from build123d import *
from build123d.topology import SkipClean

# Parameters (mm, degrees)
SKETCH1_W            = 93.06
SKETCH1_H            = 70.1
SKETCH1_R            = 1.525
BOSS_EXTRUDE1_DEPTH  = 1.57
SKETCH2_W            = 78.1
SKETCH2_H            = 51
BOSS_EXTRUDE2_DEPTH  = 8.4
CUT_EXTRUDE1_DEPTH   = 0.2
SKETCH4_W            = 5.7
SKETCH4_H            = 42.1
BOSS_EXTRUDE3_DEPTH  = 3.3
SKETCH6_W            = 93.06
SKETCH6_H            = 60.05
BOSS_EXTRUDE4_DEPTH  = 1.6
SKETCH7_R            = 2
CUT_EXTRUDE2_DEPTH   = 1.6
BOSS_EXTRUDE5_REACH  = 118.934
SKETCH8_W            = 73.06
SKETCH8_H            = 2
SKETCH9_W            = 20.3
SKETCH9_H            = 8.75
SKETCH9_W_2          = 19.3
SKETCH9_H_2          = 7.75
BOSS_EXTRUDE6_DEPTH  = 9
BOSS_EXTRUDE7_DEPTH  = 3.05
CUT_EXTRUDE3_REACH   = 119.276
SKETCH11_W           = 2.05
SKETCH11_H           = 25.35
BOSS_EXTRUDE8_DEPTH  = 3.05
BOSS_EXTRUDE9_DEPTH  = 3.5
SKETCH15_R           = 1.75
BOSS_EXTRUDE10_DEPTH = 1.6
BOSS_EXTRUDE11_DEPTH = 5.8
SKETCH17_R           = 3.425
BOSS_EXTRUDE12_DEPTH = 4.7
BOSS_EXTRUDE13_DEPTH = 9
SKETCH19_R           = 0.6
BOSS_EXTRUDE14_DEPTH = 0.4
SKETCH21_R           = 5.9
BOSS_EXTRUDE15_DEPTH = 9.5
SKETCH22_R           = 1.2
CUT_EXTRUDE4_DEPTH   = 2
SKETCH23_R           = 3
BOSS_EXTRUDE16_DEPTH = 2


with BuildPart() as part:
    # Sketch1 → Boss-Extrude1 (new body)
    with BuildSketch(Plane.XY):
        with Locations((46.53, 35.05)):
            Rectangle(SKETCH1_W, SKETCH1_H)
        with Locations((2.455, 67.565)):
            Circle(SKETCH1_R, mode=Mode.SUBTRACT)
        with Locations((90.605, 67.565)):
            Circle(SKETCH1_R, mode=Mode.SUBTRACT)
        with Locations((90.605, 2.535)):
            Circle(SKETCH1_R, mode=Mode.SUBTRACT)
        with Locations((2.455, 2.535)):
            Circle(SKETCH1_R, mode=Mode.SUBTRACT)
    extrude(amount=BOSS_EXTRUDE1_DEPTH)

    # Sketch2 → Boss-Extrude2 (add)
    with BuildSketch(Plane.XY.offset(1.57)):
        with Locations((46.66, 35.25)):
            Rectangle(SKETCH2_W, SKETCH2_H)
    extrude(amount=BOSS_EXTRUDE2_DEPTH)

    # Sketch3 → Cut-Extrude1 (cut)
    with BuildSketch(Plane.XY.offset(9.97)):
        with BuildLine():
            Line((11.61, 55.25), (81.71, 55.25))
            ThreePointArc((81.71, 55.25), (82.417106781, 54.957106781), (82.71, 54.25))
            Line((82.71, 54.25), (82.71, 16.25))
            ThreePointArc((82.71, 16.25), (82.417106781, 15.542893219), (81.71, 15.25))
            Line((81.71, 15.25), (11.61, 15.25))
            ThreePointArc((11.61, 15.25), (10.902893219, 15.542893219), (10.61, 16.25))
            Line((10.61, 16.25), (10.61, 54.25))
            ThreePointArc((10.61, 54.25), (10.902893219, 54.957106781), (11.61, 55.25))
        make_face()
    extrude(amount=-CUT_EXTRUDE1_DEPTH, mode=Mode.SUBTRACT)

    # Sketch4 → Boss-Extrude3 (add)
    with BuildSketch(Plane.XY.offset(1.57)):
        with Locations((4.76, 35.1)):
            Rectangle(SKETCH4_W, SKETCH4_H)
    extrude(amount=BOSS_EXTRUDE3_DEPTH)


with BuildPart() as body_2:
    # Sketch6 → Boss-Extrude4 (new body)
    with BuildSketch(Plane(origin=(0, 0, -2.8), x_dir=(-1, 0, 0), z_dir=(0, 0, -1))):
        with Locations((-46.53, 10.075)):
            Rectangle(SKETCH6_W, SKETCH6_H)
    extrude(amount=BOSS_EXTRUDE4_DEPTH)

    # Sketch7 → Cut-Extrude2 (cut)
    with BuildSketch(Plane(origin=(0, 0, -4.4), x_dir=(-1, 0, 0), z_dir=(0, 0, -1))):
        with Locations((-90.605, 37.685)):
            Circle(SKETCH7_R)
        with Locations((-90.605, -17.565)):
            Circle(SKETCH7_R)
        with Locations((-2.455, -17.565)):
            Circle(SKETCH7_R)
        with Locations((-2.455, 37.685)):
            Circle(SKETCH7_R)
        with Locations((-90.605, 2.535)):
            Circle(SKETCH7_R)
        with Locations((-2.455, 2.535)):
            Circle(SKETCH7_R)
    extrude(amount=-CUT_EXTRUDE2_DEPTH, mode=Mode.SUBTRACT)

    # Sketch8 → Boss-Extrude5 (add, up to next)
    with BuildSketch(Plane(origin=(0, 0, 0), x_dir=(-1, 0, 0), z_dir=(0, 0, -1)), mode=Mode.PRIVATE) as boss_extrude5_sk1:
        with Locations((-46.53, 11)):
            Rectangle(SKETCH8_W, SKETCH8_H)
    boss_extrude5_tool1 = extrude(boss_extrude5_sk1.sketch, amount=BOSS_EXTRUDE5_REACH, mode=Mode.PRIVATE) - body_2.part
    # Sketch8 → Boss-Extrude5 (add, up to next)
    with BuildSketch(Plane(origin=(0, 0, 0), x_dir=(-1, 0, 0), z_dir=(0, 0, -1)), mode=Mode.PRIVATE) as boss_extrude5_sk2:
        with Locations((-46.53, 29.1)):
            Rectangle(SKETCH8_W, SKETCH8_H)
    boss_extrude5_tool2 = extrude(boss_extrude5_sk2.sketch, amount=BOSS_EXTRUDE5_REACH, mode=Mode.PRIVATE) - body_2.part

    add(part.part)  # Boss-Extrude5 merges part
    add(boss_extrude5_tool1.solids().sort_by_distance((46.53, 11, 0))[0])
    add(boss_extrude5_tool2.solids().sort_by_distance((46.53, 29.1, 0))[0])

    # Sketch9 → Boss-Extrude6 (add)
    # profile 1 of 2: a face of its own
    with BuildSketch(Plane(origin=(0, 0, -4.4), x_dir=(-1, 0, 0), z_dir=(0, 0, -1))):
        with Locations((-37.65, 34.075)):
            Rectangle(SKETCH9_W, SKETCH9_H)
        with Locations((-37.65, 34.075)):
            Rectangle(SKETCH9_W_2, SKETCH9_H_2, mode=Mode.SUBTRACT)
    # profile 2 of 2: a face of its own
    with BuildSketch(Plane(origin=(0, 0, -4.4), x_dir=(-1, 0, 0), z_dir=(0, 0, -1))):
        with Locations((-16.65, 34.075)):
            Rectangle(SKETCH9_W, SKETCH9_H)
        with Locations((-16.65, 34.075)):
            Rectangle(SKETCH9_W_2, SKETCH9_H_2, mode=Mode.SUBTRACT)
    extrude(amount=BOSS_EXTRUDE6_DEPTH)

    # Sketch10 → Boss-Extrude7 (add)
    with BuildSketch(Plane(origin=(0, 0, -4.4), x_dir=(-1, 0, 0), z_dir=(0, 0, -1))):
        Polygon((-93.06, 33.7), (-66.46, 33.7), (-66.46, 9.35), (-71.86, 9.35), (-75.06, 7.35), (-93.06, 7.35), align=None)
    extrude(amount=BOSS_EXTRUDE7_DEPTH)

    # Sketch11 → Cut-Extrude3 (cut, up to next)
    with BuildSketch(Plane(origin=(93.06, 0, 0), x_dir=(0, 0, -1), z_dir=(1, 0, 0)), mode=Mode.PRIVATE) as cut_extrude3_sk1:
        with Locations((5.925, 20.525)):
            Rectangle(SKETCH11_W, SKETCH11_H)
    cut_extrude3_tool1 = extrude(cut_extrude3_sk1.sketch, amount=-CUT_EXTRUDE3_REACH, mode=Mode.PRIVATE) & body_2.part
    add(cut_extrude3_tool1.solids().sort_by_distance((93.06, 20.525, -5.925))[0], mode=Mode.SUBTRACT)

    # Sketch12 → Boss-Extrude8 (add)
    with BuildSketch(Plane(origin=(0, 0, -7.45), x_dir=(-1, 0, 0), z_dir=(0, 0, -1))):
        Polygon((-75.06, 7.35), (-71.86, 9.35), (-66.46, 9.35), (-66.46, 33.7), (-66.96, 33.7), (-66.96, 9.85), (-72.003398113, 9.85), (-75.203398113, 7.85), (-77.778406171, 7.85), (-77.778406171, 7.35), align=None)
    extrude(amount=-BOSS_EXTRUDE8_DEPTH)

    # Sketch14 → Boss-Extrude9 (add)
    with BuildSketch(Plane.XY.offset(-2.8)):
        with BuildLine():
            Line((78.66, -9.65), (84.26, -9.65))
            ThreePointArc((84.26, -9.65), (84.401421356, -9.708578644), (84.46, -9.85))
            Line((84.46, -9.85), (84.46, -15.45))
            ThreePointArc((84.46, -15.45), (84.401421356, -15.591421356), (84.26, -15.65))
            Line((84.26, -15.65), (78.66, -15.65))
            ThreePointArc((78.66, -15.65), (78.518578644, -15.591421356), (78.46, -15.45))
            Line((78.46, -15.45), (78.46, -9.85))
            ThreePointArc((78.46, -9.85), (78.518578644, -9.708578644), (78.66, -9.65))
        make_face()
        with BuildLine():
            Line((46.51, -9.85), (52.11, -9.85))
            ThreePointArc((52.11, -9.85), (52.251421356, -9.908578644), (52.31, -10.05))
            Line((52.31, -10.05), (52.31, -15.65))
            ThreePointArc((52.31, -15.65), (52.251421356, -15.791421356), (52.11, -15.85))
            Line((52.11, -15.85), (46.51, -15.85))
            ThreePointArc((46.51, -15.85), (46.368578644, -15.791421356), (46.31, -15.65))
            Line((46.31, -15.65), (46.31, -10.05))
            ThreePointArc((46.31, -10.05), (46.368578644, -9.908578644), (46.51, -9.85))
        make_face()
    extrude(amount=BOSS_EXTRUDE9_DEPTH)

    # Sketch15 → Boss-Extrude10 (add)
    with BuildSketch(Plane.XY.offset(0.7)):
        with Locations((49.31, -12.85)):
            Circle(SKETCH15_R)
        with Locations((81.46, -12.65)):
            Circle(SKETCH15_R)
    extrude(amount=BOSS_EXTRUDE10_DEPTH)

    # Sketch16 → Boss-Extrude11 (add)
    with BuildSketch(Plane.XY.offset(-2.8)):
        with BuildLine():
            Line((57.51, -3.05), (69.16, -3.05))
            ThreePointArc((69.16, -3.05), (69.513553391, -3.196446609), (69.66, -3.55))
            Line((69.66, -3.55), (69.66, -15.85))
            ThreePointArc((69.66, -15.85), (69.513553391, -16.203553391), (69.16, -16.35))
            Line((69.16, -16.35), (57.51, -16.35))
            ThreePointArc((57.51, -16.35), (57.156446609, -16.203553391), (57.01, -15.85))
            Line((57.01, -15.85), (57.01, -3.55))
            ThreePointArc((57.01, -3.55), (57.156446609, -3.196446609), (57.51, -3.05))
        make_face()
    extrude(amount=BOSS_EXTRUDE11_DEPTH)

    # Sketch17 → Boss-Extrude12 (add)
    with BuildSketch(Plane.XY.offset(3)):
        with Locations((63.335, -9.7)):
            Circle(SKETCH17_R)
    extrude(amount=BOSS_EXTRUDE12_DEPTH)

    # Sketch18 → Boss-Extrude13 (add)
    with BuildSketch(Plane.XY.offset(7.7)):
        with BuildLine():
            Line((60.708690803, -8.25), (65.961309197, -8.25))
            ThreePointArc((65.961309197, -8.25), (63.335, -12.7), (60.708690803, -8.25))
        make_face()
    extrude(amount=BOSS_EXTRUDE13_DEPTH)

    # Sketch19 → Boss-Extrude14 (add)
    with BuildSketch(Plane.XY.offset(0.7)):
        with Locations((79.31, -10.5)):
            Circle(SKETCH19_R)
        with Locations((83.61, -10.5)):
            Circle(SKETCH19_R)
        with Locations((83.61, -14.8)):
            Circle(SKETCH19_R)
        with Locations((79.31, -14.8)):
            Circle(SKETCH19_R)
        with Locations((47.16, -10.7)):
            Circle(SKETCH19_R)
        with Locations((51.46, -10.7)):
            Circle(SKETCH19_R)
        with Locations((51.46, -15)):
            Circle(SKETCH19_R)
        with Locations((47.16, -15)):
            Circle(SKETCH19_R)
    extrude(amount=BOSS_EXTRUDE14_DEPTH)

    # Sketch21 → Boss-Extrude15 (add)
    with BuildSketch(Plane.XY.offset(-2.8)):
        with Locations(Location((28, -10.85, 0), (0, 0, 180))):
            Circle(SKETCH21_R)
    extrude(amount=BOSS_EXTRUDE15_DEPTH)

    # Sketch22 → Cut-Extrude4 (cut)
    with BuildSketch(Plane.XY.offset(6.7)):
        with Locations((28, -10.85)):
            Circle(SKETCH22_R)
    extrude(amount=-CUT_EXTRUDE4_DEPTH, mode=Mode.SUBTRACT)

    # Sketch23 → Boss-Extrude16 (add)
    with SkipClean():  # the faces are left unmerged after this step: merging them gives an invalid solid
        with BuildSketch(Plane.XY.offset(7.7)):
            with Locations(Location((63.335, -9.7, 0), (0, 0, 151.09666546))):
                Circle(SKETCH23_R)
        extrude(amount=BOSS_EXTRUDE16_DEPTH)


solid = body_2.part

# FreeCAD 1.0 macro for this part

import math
import FreeCAD as App
import Part
import Sketcher
from FreeCAD import Vector

doc = App.newDocument("Part")
body = doc.addObject("PartDesign::Body", "Body")

# Sketch on XY plane
sketch1 = body.newObject("Sketcher::SketchObject", "Sketch")
sketch1.AttachmentSupport = (doc.getObject("XY_Plane"), [""])
sketch1.MapMode = "FlatFace"
sketch1.addGeometry([
    Part.LineSegment(Vector(0, 70.1, 0), Vector(0, 0, 0)),  # 0
    Part.LineSegment(Vector(0, 0, 0), Vector(93.1, 0, 0)),  # 1
    Part.LineSegment(Vector(93.1, 0, 0), Vector(93.1, 70.1, 0)),  # 2
    Part.LineSegment(Vector(93.1, 70.1, 0), Vector(0, 70.1, 0)),  # 3
    Part.Circle(Vector(2.5, 2.5, 0), Vector(0, 0, 1), 1.5),  # 4
    Part.Circle(Vector(90.6, 2.5, 0), Vector(0, 0, 1), 1.5),  # 5
    Part.Circle(Vector(2.5, 67.6, 0), Vector(0, 0, 1), 1.5),  # 6
    Part.Circle(Vector(90.6, 67.6, 0), Vector(0, 0, 1), 1.5),  # 7
], False)
sketch1.addConstraint([
    Sketcher.Constraint("Coincident", 0, 2, 1, 1),
    Sketcher.Constraint("Coincident", 1, 2, 2, 1),
    Sketcher.Constraint("Coincident", 2, 2, 3, 1),
    Sketcher.Constraint("Coincident", 3, 2, 0, 1),
    Sketcher.Constraint("Vertical", 0),
    Sketcher.Constraint("Horizontal", 1),
    Sketcher.Constraint("Vertical", 2),
    Sketcher.Constraint("Horizontal", 3),
    Sketcher.Constraint("Coincident", 0, 2, -1, 1),
    Sketcher.Constraint("Equal", 4, 5),
    Sketcher.Constraint("Equal", 5, 6),
    Sketcher.Constraint("Equal", 6, 7),
    Sketcher.Constraint("Horizontal", 4, 3, 5, 3),
    Sketcher.Constraint("Horizontal", 6, 3, 7, 3),
    Sketcher.Constraint("Vertical", 4, 3, 6, 3),
    Sketcher.Constraint("Vertical", 5, 3, 7, 3),
    Sketcher.Constraint("Diameter", 4, 3.05),
    Sketcher.Constraint("DistanceY", 0, 2, 0, 1, 70.1),
    Sketcher.Constraint("DistanceX", 1, 1, 1, 2, 93.06),
    Sketcher.Constraint("DistanceX", 4, 3, 5, 3, 88.15),
    Sketcher.Constraint("DistanceY", 4, 3, 6, 3, 65.03),
    Sketcher.Constraint("DistanceX", -1, 1, 4, 3, 2.455),
    Sketcher.Constraint("DistanceY", -1, 1, 4, 3, 2.535),
])
pad1 = body.newObject("PartDesign::Pad", "Pad")
pad1.Profile = sketch1
pad1.Length = 1.57

# Sketch on XY plane
sketch2 = body.newObject("Sketcher::SketchObject", "Sketch001")
sketch2.AttachmentSupport = (doc.getObject("XY_Plane"), [""])
sketch2.MapMode = "FlatFace"
sketch2.AttachmentOffset = App.Placement(Vector(0, 0, 1.57), App.Rotation())
sketch2.addGeometry([
    Part.LineSegment(Vector(8, 61, 0), Vector(8, 10, 0)),
    Part.LineSegment(Vector(8, 10, 0), Vector(86, 10, 0)),
    Part.LineSegment(Vector(86, 10, 0), Vector(86, 61, 0)),
    Part.LineSegment(Vector(86, 61, 0), Vector(8, 61, 0)),
], False)
sketch2.addConstraint([
    Sketcher.Constraint("Coincident", 0, 2, 1, 1),
    Sketcher.Constraint("Coincident", 1, 2, 2, 1),
    Sketcher.Constraint("Coincident", 2, 2, 3, 1),
    Sketcher.Constraint("Coincident", 3, 2, 0, 1),
    Sketcher.Constraint("Vertical", 0),
    Sketcher.Constraint("Horizontal", 1),
    Sketcher.Constraint("Vertical", 2),
    Sketcher.Constraint("Horizontal", 3),
    Sketcher.Constraint("DistanceY", 0, 2, 0, 1, 51.0),
    Sketcher.Constraint("DistanceX", 1, 1, 1, 2, 78.1),
    Sketcher.Constraint("DistanceX", -1, 1, 0, 2, 7.61),
    Sketcher.Constraint("DistanceY", -1, 1, 0, 2, 9.75),
])
pad2 = body.newObject("PartDesign::Pad", "Pad001")
pad2.Profile = sketch2
pad2.Length = 8.4

# Sketch on XY plane
sketch3 = body.newObject("Sketcher::SketchObject", "Sketch002")
sketch3.AttachmentSupport = (doc.getObject("XY_Plane"), [""])
sketch3.MapMode = "FlatFace"
sketch3.AttachmentOffset = App.Placement(Vector(0, 0, 9.97), App.Rotation())
sketch3.addGeometry([
    Part.LineSegment(Vector(81.7, 55.2, 0), Vector(11.6, 55.2, 0)),  # 0
    Part.ArcOfCircle(Part.Circle(Vector(11.6, 54.2, 0), Vector(0, 0, 1), 1), math.radians(90), math.radians(180)),  # 1
    Part.LineSegment(Vector(10.6, 54.2, 0), Vector(10.6, 16.2, 0)),  # 2
    Part.ArcOfCircle(Part.Circle(Vector(11.6, 16.3, 0), Vector(0, 0, 1), 1), math.radians(-180), math.radians(-90)),  # 3
    Part.LineSegment(Vector(11.6, 15.2, 0), Vector(81.7, 15.2, 0)),  # 4
    Part.ArcOfCircle(Part.Circle(Vector(81.7, 16.3, 0), Vector(0, 0, 1), 1), math.radians(-90), math.radians(0)),  # 5
    Part.LineSegment(Vector(82.7, 16.2, 0), Vector(82.7, 54.2, 0)),  # 6
    Part.ArcOfCircle(Part.Circle(Vector(81.7, 54.2, 0), Vector(0, 0, 1), 1), math.radians(0), math.radians(90)),  # 7
], False)
sketch3.addConstraint([
    Sketcher.Constraint("Tangent", 0, 2, 1, 1),
    Sketcher.Constraint("Tangent", 1, 2, 2, 1),
    Sketcher.Constraint("Tangent", 2, 2, 3, 1),
    Sketcher.Constraint("Tangent", 3, 2, 4, 1),
    Sketcher.Constraint("Tangent", 4, 2, 5, 1),
    Sketcher.Constraint("Tangent", 5, 2, 6, 1),
    Sketcher.Constraint("Tangent", 6, 2, 7, 1),
    Sketcher.Constraint("Tangent", 7, 2, 0, 1),
    Sketcher.Constraint("Horizontal", 0),
    Sketcher.Constraint("Vertical", 2),
    Sketcher.Constraint("Horizontal", 4),
    Sketcher.Constraint("Vertical", 6),
    Sketcher.Constraint("Equal", 1, 3),
    Sketcher.Constraint("Equal", 3, 5),
    Sketcher.Constraint("Equal", 5, 7),
    Sketcher.Constraint("Radius", 1, 1.0),
    Sketcher.Constraint("DistanceY", 2, 2, 2, 1, 38.0),
    Sketcher.Constraint("DistanceX", 0, 2, 0, 1, 70.1),
    Sketcher.Constraint("DistanceX", -1, 1, 1, 3, 11.61),
    Sketcher.Constraint("DistanceY", -1, 1, 1, 3, 54.25),
])
pocket1 = body.newObject("PartDesign::Pocket", "Pocket")
pocket1.Profile = sketch3
pocket1.Length = 0.2

# Sketch on XY plane
sketch4 = body.newObject("Sketcher::SketchObject", "Sketch003")
sketch4.AttachmentSupport = (doc.getObject("XY_Plane"), [""])
sketch4.MapMode = "FlatFace"
sketch4.AttachmentOffset = App.Placement(Vector(0, 0, 1.57), App.Rotation())
sketch4.addGeometry([
    Part.LineSegment(Vector(2, 56, 0), Vector(2, 14, 0)),
    Part.LineSegment(Vector(2, 14, 0), Vector(8, 14, 0)),
    Part.LineSegment(Vector(8, 14, 0), Vector(8, 56, 0)),
    Part.LineSegment(Vector(8, 56, 0), Vector(2, 56, 0)),
], False)
sketch4.addConstraint([
    Sketcher.Constraint("Coincident", 0, 2, 1, 1),
    Sketcher.Constraint("Coincident", 1, 2, 2, 1),
    Sketcher.Constraint("Coincident", 2, 2, 3, 1),
    Sketcher.Constraint("Coincident", 3, 2, 0, 1),
    Sketcher.Constraint("Vertical", 0),
    Sketcher.Constraint("Horizontal", 1),
    Sketcher.Constraint("Vertical", 2),
    Sketcher.Constraint("Horizontal", 3),
    Sketcher.Constraint("DistanceX", 1, 1, 1, 2, 5.7),
    Sketcher.Constraint("DistanceY", 0, 2, 0, 1, 42.1),
    Sketcher.Constraint("DistanceX", -1, 1, 0, 2, 1.91),
    Sketcher.Constraint("DistanceY", -1, 1, 0, 2, 14.05),
])
pad3 = body.newObject("PartDesign::Pad", "Pad002")
pad3.Profile = sketch4
pad3.Length = 3.3
body2 = doc.addObject("PartDesign::Body", "Body001")
body2.AllowCompound = True

# Sketch on XY plane
sketch5 = body2.newObject("Sketcher::SketchObject", "Sketch004")
sketch5.AttachmentSupport = (doc.getObject("XY_Plane001"), [""])
sketch5.MapMode = "FlatFace"
sketch5.AttachmentOffset = App.Placement(Vector(0, 0, -2.8), App.Rotation())
sketch5.addGeometry([
    Part.LineSegment(Vector(93, 40, 0), Vector(93, -20, 0)),
    Part.LineSegment(Vector(93, -20, 0), Vector(0, -20, 0)),
    Part.LineSegment(Vector(0, -20, 0), Vector(0, 40, 0)),
    Part.LineSegment(Vector(0, 40, 0), Vector(93, 40, 0)),
], False)
sketch5.addConstraint([
    Sketcher.Constraint("Coincident", 0, 2, 1, 1),
    Sketcher.Constraint("Coincident", 1, 2, 2, 1),
    Sketcher.Constraint("Coincident", 2, 2, 3, 1),
    Sketcher.Constraint("Coincident", 3, 2, 0, 1),
    Sketcher.Constraint("Vertical", 0),
    Sketcher.Constraint("Horizontal", 1),
    Sketcher.Constraint("Vertical", 2),
    Sketcher.Constraint("Horizontal", 3),
    Sketcher.Constraint("PointOnObject", 1, 2, -2),
    Sketcher.Constraint("DistanceX", 1, 2, 1, 1, 93.06),
    Sketcher.Constraint("DistanceY", 0, 2, 0, 1, 60.05),
    Sketcher.Constraint("DistanceY", -1, 1, 2, 2, 40.1),
])
pad4 = body2.newObject("PartDesign::Pad", "Pad003")
pad4.Profile = sketch5
pad4.Length = 1.6
pad4.Reversed = True

# Sketch on XY plane
sketch6 = body2.newObject("Sketcher::SketchObject", "Sketch005")
sketch6.AttachmentSupport = (doc.getObject("XY_Plane001"), [""])
sketch6.MapMode = "FlatFace"
sketch6.AttachmentOffset = App.Placement(Vector(0, 0, -4.4), App.Rotation())
sketch6.addGeometry([
    Part.Circle(Vector(90.6, 37.7, 0), Vector(0, 0, 1), 2),  # 0
    Part.Circle(Vector(90.6, -17.6, 0), Vector(0, 0, 1), 2),  # 1
    Part.Circle(Vector(2.5, -17.6, 0), Vector(0, 0, 1), 2),  # 2
    Part.Circle(Vector(2.5, 37.7, 0), Vector(0, 0, 1), 2),  # 3
    Part.Circle(Vector(90.6, 2.5, 0), Vector(0, 0, 1), 2),  # 4
    Part.Circle(Vector(2.5, 2.5, 0), Vector(0, 0, 1), 2),  # 5
], False)
sketch6.addConstraint([
    Sketcher.Constraint("Equal", 0, 1),
    Sketcher.Constraint("Equal", 1, 2),
    Sketcher.Constraint("Equal", 2, 3),
    Sketcher.Constraint("Equal", 3, 4),
    Sketcher.Constraint("Equal", 4, 5),
    Sketcher.Constraint("Horizontal", 1, 3, 2, 3),
    Sketcher.Constraint("Horizontal", 0, 3, 3, 3),
    Sketcher.Constraint("Horizontal", 4, 3, 5, 3),
    Sketcher.Constraint("Vertical", 0, 3, 1, 3),
    Sketcher.Constraint("Vertical", 2, 3, 3, 3),
    Sketcher.Constraint("Vertical", 1, 3, 4, 3),
    Sketcher.Constraint("Vertical", 3, 3, 5, 3),
    Sketcher.Constraint("Diameter", 0, 4.0),
    Sketcher.Constraint("DistanceY", 1, 3, 4, 3, 20.1),
    Sketcher.Constraint("DistanceY", 1, 3, 0, 3, 55.25),
    Sketcher.Constraint("DistanceX", 2, 3, 1, 3, 88.15),
    Sketcher.Constraint("DistanceX", -1, 1, 0, 3, 90.605),
    Sketcher.Constraint("DistanceY", -1, 1, 0, 3, 37.685),
])
pocket2 = body2.newObject("PartDesign::Pocket", "Pocket001")
pocket2.Profile = sketch6
pocket2.Length = 1.6
pocket2.Reversed = True
doc.recompute()

boolean = body2.newObject("PartDesign::Boolean", "Boolean")
boolean.Type = "Fuse"
boolean.addObjects([body])

# Sketch on XY plane
sketch7 = body2.newObject("Sketcher::SketchObject", "Sketch006")
sketch7.AttachmentSupport = (doc.getObject("XY_Plane001"), [""])
sketch7.MapMode = "FlatFace"
sketch7.addGeometry([
    Part.LineSegment(Vector(83.1, 12, 0), Vector(83.1, 10, 0)),
    Part.LineSegment(Vector(83.1, 10, 0), Vector(10, 10, 0)),
    Part.LineSegment(Vector(10, 10, 0), Vector(10, 12, 0)),
    Part.LineSegment(Vector(10, 12, 0), Vector(83.1, 12, 0)),
], False)
sketch7.addConstraint([
    Sketcher.Constraint("Coincident", 0, 2, 1, 1),
    Sketcher.Constraint("Coincident", 1, 2, 2, 1),
    Sketcher.Constraint("Coincident", 2, 2, 3, 1),
    Sketcher.Constraint("Coincident", 3, 2, 0, 1),
    Sketcher.Constraint("Vertical", 0),
    Sketcher.Constraint("Horizontal", 1),
    Sketcher.Constraint("Vertical", 2),
    Sketcher.Constraint("Horizontal", 3),
    Sketcher.Constraint("DistanceY", 0, 2, 0, 1, 2.0),
    Sketcher.Constraint("DistanceY", -1, 1, 0, 2, 10.0),
    Sketcher.Constraint("DistanceX", -1, 1, 1, 2, 10.0),
    Sketcher.Constraint("DistanceX", 1, 2, 1, 1, 73.06),
])
pad5 = body2.newObject("PartDesign::Pad", "Pad004")
pad5.Profile = sketch7
pad5.Type = "UpToFirst"
pad5.Reversed = True

# Sketch on XY plane
sketch8 = body2.newObject("Sketcher::SketchObject", "Sketch007")
sketch8.AttachmentSupport = (doc.getObject("XY_Plane001"), [""])
sketch8.MapMode = "FlatFace"
sketch8.addGeometry([
    Part.LineSegment(Vector(83.1, 30.1, 0), Vector(83.1, 28.1, 0)),
    Part.LineSegment(Vector(83.1, 28.1, 0), Vector(10, 28.1, 0)),
    Part.LineSegment(Vector(10, 28.1, 0), Vector(10, 30.1, 0)),
    Part.LineSegment(Vector(10, 30.1, 0), Vector(83.1, 30.1, 0)),
], False)
sketch8.addConstraint([
    Sketcher.Constraint("Coincident", 0, 2, 1, 1),
    Sketcher.Constraint("Coincident", 1, 2, 2, 1),
    Sketcher.Constraint("Coincident", 2, 2, 3, 1),
    Sketcher.Constraint("Coincident", 3, 2, 0, 1),
    Sketcher.Constraint("Vertical", 0),
    Sketcher.Constraint("Horizontal", 1),
    Sketcher.Constraint("Vertical", 2),
    Sketcher.Constraint("Horizontal", 3),
    Sketcher.Constraint("DistanceY", 0, 2, 0, 1, 2.0),
    Sketcher.Constraint("DistanceX", -1, 1, 1, 2, 10.0),
    Sketcher.Constraint("DistanceX", 1, 2, 1, 1, 73.06),
    Sketcher.Constraint("DistanceY", -1, 1, 0, 2, 28.1),
])
pad6 = body2.newObject("PartDesign::Pad", "Pad005")
pad6.Profile = sketch8
pad6.Type = "UpToFirst"
pad6.Reversed = True

# Sketch on XY plane
sketch9 = body2.newObject("Sketcher::SketchObject", "Sketch008")
sketch9.AttachmentSupport = (doc.getObject("XY_Plane001"), [""])
sketch9.MapMode = "FlatFace"
sketch9.AttachmentOffset = App.Placement(Vector(0, 0, -4.4), App.Rotation())
sketch9.addGeometry([
    Part.LineSegment(Vector(48, 38, 0), Vector(48, 30, 0)),  # 0
    Part.LineSegment(Vector(48, 30, 0), Vector(28, 30, 0)),  # 1
    Part.LineSegment(Vector(28, 30, 0), Vector(28, 38, 0)),  # 2
    Part.LineSegment(Vector(28, 38, 0), Vector(48, 38, 0)),  # 3
    Part.LineSegment(Vector(28, 30, 0), Vector(47, 30, 0)),  # 4
    Part.LineSegment(Vector(47, 30, 0), Vector(47, 38, 0)),  # 5
    Part.LineSegment(Vector(47, 38, 0), Vector(28, 38, 0)),  # 6
    Part.LineSegment(Vector(28, 38, 0), Vector(28, 30, 0)),  # 7
    Part.LineSegment(Vector(27, 38, 0), Vector(27, 30, 0)),  # 8
    Part.LineSegment(Vector(27, 30, 0), Vector(6, 30, 0)),  # 9
    Part.LineSegment(Vector(6, 30, 0), Vector(6, 38, 0)),  # 10
    Part.LineSegment(Vector(6, 38, 0), Vector(27, 38, 0)),  # 11
    Part.LineSegment(Vector(7, 30, 0), Vector(26, 30, 0)),  # 12
    Part.LineSegment(Vector(26, 30, 0), Vector(26, 38, 0)),  # 13
    Part.LineSegment(Vector(26, 38, 0), Vector(7, 38, 0)),  # 14
    Part.LineSegment(Vector(7, 38, 0), Vector(7, 30, 0)),  # 15
], False)
sketch9.addConstraint([
    Sketcher.Constraint("Coincident", 0, 2, 1, 1),
    Sketcher.Constraint("Coincident", 1, 2, 2, 1),
    Sketcher.Constraint("Coincident", 2, 2, 3, 1),
    Sketcher.Constraint("Coincident", 3, 2, 0, 1),
    Sketcher.Constraint("Coincident", 4, 2, 5, 1),
    Sketcher.Constraint("Coincident", 5, 2, 6, 1),
    Sketcher.Constraint("Coincident", 6, 2, 7, 1),
    Sketcher.Constraint("Coincident", 7, 2, 4, 1),
    Sketcher.Constraint("Coincident", 8, 2, 9, 1),
    Sketcher.Constraint("Coincident", 9, 2, 10, 1),
    Sketcher.Constraint("Coincident", 10, 2, 11, 1),
    Sketcher.Constraint("Coincident", 11, 2, 8, 1),
    Sketcher.Constraint("Coincident", 12, 2, 13, 1),
    Sketcher.Constraint("Coincident", 13, 2, 14, 1),
    Sketcher.Constraint("Coincident", 14, 2, 15, 1),
    Sketcher.Constraint("Coincident", 15, 2, 12, 1),
    Sketcher.Constraint("Vertical", 0),
    Sketcher.Constraint("Horizontal", 1),
    Sketcher.Constraint("Vertical", 2),
    Sketcher.Constraint("Horizontal", 3),
    Sketcher.Constraint("Horizontal", 4),
    Sketcher.Constraint("Vertical", 5),
    Sketcher.Constraint("Horizontal", 6),
    Sketcher.Constraint("Vertical", 7),
    Sketcher.Constraint("Vertical", 8),
    Sketcher.Constraint("Horizontal", 9),
    Sketcher.Constraint("Vertical", 10),
    Sketcher.Constraint("Horizontal", 11),
    Sketcher.Constraint("Horizontal", 12),
    Sketcher.Constraint("Vertical", 13),
    Sketcher.Constraint("Horizontal", 14),
    Sketcher.Constraint("Vertical", 15),
    Sketcher.Constraint("Horizontal", 1, 2, 8, 2),
    Sketcher.Constraint("Horizontal", 3, 2, 10, 2),
    Sketcher.Constraint("Horizontal", 7, 2, 12, 2),
    Sketcher.Constraint("Horizontal", 6, 2, 13, 2),
    Sketcher.Constraint("Equal", 3, 9),
    Sketcher.Constraint("Equal", 6, 12),
    Sketcher.Constraint("DistanceX", 1, 2, 1, 1, 20.3),
    Sketcher.Constraint("DistanceX", 4, 1, 4, 2, 19.3),
    Sketcher.Constraint("DistanceX", -1, 1, 6, 2, 28.0),
    Sketcher.Constraint("DistanceX", -1, 1, 14, 2, 7.0),
    Sketcher.Constraint("DistanceX", 9, 2, 1, 2, 21.0),
    Sketcher.Constraint("DistanceY", 0, 2, 0, 1, 8.75),
    Sketcher.Constraint("DistanceY", 5, 1, 5, 2, 7.75),
    Sketcher.Constraint("DistanceX", -1, 1, 0, 2, 47.8),
    Sketcher.Constraint("DistanceY", -1, 1, 0, 2, 29.7),
    Sketcher.Constraint("DistanceY", -1, 1, 4, 2, 30.2),
])
pad7 = body2.newObject("PartDesign::Pad", "Pad006")
pad7.Profile = sketch9
pad7.Length = 9
pad7.Reversed = True

# Sketch on XY plane
sketch10 = body2.newObject("Sketcher::SketchObject", "Sketch009")
sketch10.AttachmentSupport = (doc.getObject("XY_Plane001"), [""])
sketch10.MapMode = "FlatFace"
sketch10.AttachmentOffset = App.Placement(Vector(0, 0, -4.4), App.Rotation())
sketch10.addGeometry([
    Part.LineSegment(Vector(66.5, 33.7, 0), Vector(93.1, 33.7, 0)),  # 0
    Part.LineSegment(Vector(93.1, 33.7, 0), Vector(93.1, 7.3, 0)),  # 1
    Part.LineSegment(Vector(93.1, 7.3, 0), Vector(75.1, 7.3, 0)),  # 2
    Part.LineSegment(Vector(75.1, 7.3, 0), Vector(71.9, 9.3, 0)),  # 3
    Part.LineSegment(Vector(71.9, 9.3, 0), Vector(66.5, 9.3, 0)),  # 4
    Part.LineSegment(Vector(66.5, 9.3, 0), Vector(66.5, 33.7, 0)),  # 5
], False)
sketch10.addConstraint([
    Sketcher.Constraint("Coincident", 0, 2, 1, 1),
    Sketcher.Constraint("Coincident", 1, 2, 2, 1),
    Sketcher.Constraint("Coincident", 2, 2, 3, 1),
    Sketcher.Constraint("Coincident", 3, 2, 4, 1),
    Sketcher.Constraint("Coincident", 4, 2, 5, 1),
    Sketcher.Constraint("Coincident", 5, 2, 0, 1),
    Sketcher.Constraint("Horizontal", 0),
    Sketcher.Constraint("Vertical", 1),
    Sketcher.Constraint("Horizontal", 2),
    Sketcher.Constraint("Horizontal", 4),
    Sketcher.Constraint("Vertical", 5),
    Sketcher.Constraint("DistanceX", 2, 2, 2, 1, 18.0),
    Sketcher.Constraint("DistanceX", 0, 1, 0, 2, 26.6),
    Sketcher.Constraint("DistanceX", 4, 2, 4, 1, 5.4),
    Sketcher.Constraint("DistanceY", 2, 2, 3, 2, 2.0),
    Sketcher.Constraint("DistanceY", 1, 2, 1, 1, 26.35),
    Sketcher.Constraint("DistanceY", -1, 1, 0, 2, 33.7),
    Sketcher.Constraint("DistanceX", -1, 1, 0, 2, 93.06),
])
pad8 = body2.newObject("PartDesign::Pad", "Pad007")
pad8.Profile = sketch10
pad8.Length = 3.05
pad8.Reversed = True

# Sketch on YZ plane
sketch11 = body2.newObject("Sketcher::SketchObject", "Sketch010")
sketch11.AttachmentSupport = (doc.getObject("YZ_Plane001"), [""])
sketch11.MapMode = "FlatFace"
sketch11.AttachmentOffset = App.Placement(Vector(0, 0, 93.06), App.Rotation())
sketch11.addGeometry([
    Part.LineSegment(Vector(33.2, -4.9, 0), Vector(7.8, -4.9, 0)),
    Part.LineSegment(Vector(7.8, -4.9, 0), Vector(7.8, -7, 0)),
    Part.LineSegment(Vector(7.8, -7, 0), Vector(33.2, -7, 0)),
    Part.LineSegment(Vector(33.2, -7, 0), Vector(33.2, -4.9, 0)),
], False)
sketch11.addConstraint([
    Sketcher.Constraint("Coincident", 0, 2, 1, 1),
    Sketcher.Constraint("Coincident", 1, 2, 2, 1),
    Sketcher.Constraint("Coincident", 2, 2, 3, 1),
    Sketcher.Constraint("Coincident", 3, 2, 0, 1),
    Sketcher.Constraint("Horizontal", 0),
    Sketcher.Constraint("Vertical", 1),
    Sketcher.Constraint("Horizontal", 2),
    Sketcher.Constraint("Vertical", 3),
    Sketcher.Constraint("DistanceX", 0, 2, 0, 1, 25.35),
    Sketcher.Constraint("DistanceY", 1, 2, 1, 1, 2.05),
    Sketcher.Constraint("DistanceY", 0, 2, -1, 1, 4.9),
    Sketcher.Constraint("DistanceX", -1, 1, 2, 2, 33.2),
])
pocket3 = body2.newObject("PartDesign::Pocket", "Pocket002")
pocket3.Profile = sketch11
pocket3.Type = "UpToFirst"

# Sketch on XY plane
sketch12 = body2.newObject("Sketcher::SketchObject", "Sketch011")
sketch12.AttachmentSupport = (doc.getObject("XY_Plane001"), [""])
sketch12.MapMode = "FlatFace"
sketch12.AttachmentOffset = App.Placement(Vector(0, 0, -7.45), App.Rotation())
sketch12.addGeometry([
    Part.LineSegment(Vector(75.1, 7.3, 0), Vector(71.9, 9.3, 0)),  # 0
    Part.LineSegment(Vector(71.9, 9.3, 0), Vector(66.5, 9.3, 0)),  # 1
    Part.LineSegment(Vector(66.5, 9.3, 0), Vector(66.5, 33.7, 0)),  # 2
    Part.LineSegment(Vector(66.5, 33.7, 0), Vector(67, 33.7, 0)),  # 3
    Part.LineSegment(Vector(67, 33.7, 0), Vector(67, 9.8, 0)),  # 4
    Part.LineSegment(Vector(67, 9.8, 0), Vector(72, 9.8, 0)),  # 5
    Part.LineSegment(Vector(72, 9.8, 0), Vector(75.2, 7.8, 0)),  # 6
    Part.LineSegment(Vector(75.2, 7.8, 0), Vector(77.8, 7.8, 0)),  # 7
    Part.LineSegment(Vector(77.8, 7.8, 0), Vector(77.8, 7.3, 0)),  # 8
    Part.LineSegment(Vector(77.8, 7.3, 0), Vector(75.1, 7.3, 0)),  # 9
], False)
sketch12.addConstraint([
    Sketcher.Constraint("Coincident", 0, 2, 1, 1),
    Sketcher.Constraint("Coincident", 1, 2, 2, 1),
    Sketcher.Constraint("Coincident", 2, 2, 3, 1),
    Sketcher.Constraint("Coincident", 3, 2, 4, 1),
    Sketcher.Constraint("Coincident", 4, 2, 5, 1),
    Sketcher.Constraint("Coincident", 5, 2, 6, 1),
    Sketcher.Constraint("Coincident", 6, 2, 7, 1),
    Sketcher.Constraint("Coincident", 7, 2, 8, 1),
    Sketcher.Constraint("Coincident", 8, 2, 9, 1),
    Sketcher.Constraint("Coincident", 9, 2, 0, 1),
    Sketcher.Constraint("Horizontal", 1),
    Sketcher.Constraint("Vertical", 2),
    Sketcher.Constraint("Horizontal", 3),
    Sketcher.Constraint("Vertical", 4),
    Sketcher.Constraint("Horizontal", 5),
    Sketcher.Constraint("Horizontal", 7),
    Sketcher.Constraint("Vertical", 8),
    Sketcher.Constraint("Horizontal", 9),
    Sketcher.Constraint("Parallel", 0, 6),
    Sketcher.Constraint("Equal", 3, 8),
    Sketcher.Constraint("Equal", 0, 6),
    Sketcher.Constraint("DistanceX", 1, 2, 1, 1, 5.4),
    Sketcher.Constraint("DistanceX", 3, 1, 3, 2, 0.5),
    Sketcher.Constraint("DistanceY", 6, 2, 5, 2, 2.0),
    Sketcher.Constraint("DistanceY", 2, 1, 2, 2, 24.35),
    Sketcher.Constraint("DistanceY", -1, 1, 2, 2, 33.7),
    Sketcher.Constraint("DistanceX", 5, 2, 6, 2, 3.2),
    Sketcher.Constraint("DistanceX", -1, 1, 0, 2, 71.86),
    Sketcher.Constraint("DistanceX", 5, 1, 5, 2, 5.043398),
    Sketcher.Constraint("DistanceX", 7, 1, 7, 2, 2.575008),
])
pad9 = body2.newObject("PartDesign::Pad", "Pad008")
pad9.Profile = sketch12
pad9.Length = 3.05

# Sketch on XY plane
sketch13 = body2.newObject("Sketcher::SketchObject", "Sketch012")
sketch13.AttachmentSupport = (doc.getObject("XY_Plane001"), [""])
sketch13.MapMode = "FlatFace"
sketch13.AttachmentOffset = App.Placement(Vector(0, 0, -2.8), App.Rotation())
sketch13.addGeometry([
    Part.LineSegment(Vector(84.26, -9.65, 0), Vector(78.66, -9.65, 0)),  # 0
    Part.ArcOfCircle(Part.Circle(Vector(78.66, -9.85, 0), Vector(0, 0, 1), 0.2), math.radians(90), math.radians(180)),  # 1
    Part.LineSegment(Vector(78.46, -9.85, 0), Vector(78.46, -15.45, 0)),  # 2
    Part.ArcOfCircle(Part.Circle(Vector(78.66, -15.45, 0), Vector(0, 0, 1), 0.2), math.radians(-180), math.radians(-90)),  # 3
    Part.LineSegment(Vector(78.66, -15.65, 0), Vector(84.26, -15.65, 0)),  # 4
    Part.ArcOfCircle(Part.Circle(Vector(84.26, -15.45, 0), Vector(0, 0, 1), 0.2), math.radians(-90), math.radians(0)),  # 5
    Part.LineSegment(Vector(84.46, -15.45, 0), Vector(84.46, -9.85, 0)),  # 6
    Part.ArcOfCircle(Part.Circle(Vector(84.26, -9.85, 0), Vector(0, 0, 1), 0.2), math.radians(0), math.radians(90)),  # 7
    Part.LineSegment(Vector(52.11, -9.85, 0), Vector(46.51, -9.85, 0)),  # 8
    Part.ArcOfCircle(Part.Circle(Vector(46.51, -10.05, 0), Vector(0, 0, 1), 0.2), math.radians(90), math.radians(180)),  # 9
    Part.LineSegment(Vector(46.31, -10.05, 0), Vector(46.31, -15.65, 0)),  # 10
    Part.ArcOfCircle(Part.Circle(Vector(46.51, -15.65, 0), Vector(0, 0, 1), 0.2), math.radians(-180), math.radians(-90)),  # 11
    Part.LineSegment(Vector(46.51, -15.85, 0), Vector(52.11, -15.85, 0)),  # 12
    Part.ArcOfCircle(Part.Circle(Vector(52.11, -15.65, 0), Vector(0, 0, 1), 0.2), math.radians(-90), math.radians(0)),  # 13
    Part.LineSegment(Vector(52.31, -15.65, 0), Vector(52.31, -10.05, 0)),  # 14
    Part.ArcOfCircle(Part.Circle(Vector(52.11, -10.05, 0), Vector(0, 0, 1), 0.2), math.radians(0), math.radians(90)),  # 15
], False)
sketch13.addConstraint([
    Sketcher.Constraint("Tangent", 0, 2, 1, 1),
    Sketcher.Constraint("Tangent", 1, 2, 2, 1),
    Sketcher.Constraint("Tangent", 2, 2, 3, 1),
    Sketcher.Constraint("Tangent", 3, 2, 4, 1),
    Sketcher.Constraint("Tangent", 4, 2, 5, 1),
    Sketcher.Constraint("Tangent", 5, 2, 6, 1),
    Sketcher.Constraint("Tangent", 6, 2, 7, 1),
    Sketcher.Constraint("Tangent", 7, 2, 0, 1),
    Sketcher.Constraint("Tangent", 8, 2, 9, 1),
    Sketcher.Constraint("Tangent", 9, 2, 10, 1),
    Sketcher.Constraint("Tangent", 10, 2, 11, 1),
    Sketcher.Constraint("Tangent", 11, 2, 12, 1),
    Sketcher.Constraint("Tangent", 12, 2, 13, 1),
    Sketcher.Constraint("Tangent", 13, 2, 14, 1),
    Sketcher.Constraint("Tangent", 14, 2, 15, 1),
    Sketcher.Constraint("Tangent", 15, 2, 8, 1),
    Sketcher.Constraint("Horizontal", 0),
    Sketcher.Constraint("Vertical", 2),
    Sketcher.Constraint("Horizontal", 4),
    Sketcher.Constraint("Vertical", 6),
    Sketcher.Constraint("Horizontal", 8),
    Sketcher.Constraint("Vertical", 10),
    Sketcher.Constraint("Horizontal", 12),
    Sketcher.Constraint("Vertical", 14),
    Sketcher.Constraint("Equal", 1, 3),
    Sketcher.Constraint("Equal", 3, 5),
    Sketcher.Constraint("Equal", 5, 7),
    Sketcher.Constraint("Equal", 7, 9),
    Sketcher.Constraint("Equal", 9, 11),
    Sketcher.Constraint("Equal", 11, 13),
    Sketcher.Constraint("Equal", 13, 15),
    Sketcher.Constraint("Horizontal", 13, 3, 3, 2),
    Sketcher.Constraint("Horizontal", 6, 2, 8, 2),
    Sketcher.Constraint("Equal", 4, 8),
    Sketcher.Constraint("Equal", 12, 2),
    Sketcher.Constraint("Radius", 1, 0.2),
    Sketcher.Constraint("DistanceX", 0, 2, 0, 1, 5.6),
    Sketcher.Constraint("DistanceX", -1, 1, 1, 3, 78.66),
    Sketcher.Constraint("DistanceY", 1, 3, -1, 1, 9.85),
    Sketcher.Constraint("DistanceX", -1, 1, 9, 3, 46.51),
])
pad10 = body2.newObject("PartDesign::Pad", "Pad009")
pad10.Profile = sketch13
pad10.Length = 3.5

# Sketch on XY plane
sketch14 = body2.newObject("Sketcher::SketchObject", "Sketch013")
sketch14.AttachmentSupport = (doc.getObject("XY_Plane001"), [""])
sketch14.MapMode = "FlatFace"
sketch14.AttachmentOffset = App.Placement(Vector(0, 0, 0.7), App.Rotation())
sketch14.addGeometry([
    Part.Circle(Vector(49.3, -12.8, 0), Vector(0, 0, 1), 1.8),
    Part.Circle(Vector(81.5, -12.7, 0), Vector(0, 0, 1), 1.8),
], False)
sketch14.addConstraint([
    Sketcher.Constraint("Equal", 0, 1),
    Sketcher.Constraint("Diameter", 0, 3.5),
    Sketcher.Constraint("DistanceY", 0, 3, 1, 3, 0.2),
    Sketcher.Constraint("DistanceX", -1, 1, 0, 3, 49.31),
    Sketcher.Constraint("DistanceY", 0, 3, -1, 1, 12.85),
    Sketcher.Constraint("DistanceX", -1, 1, 1, 3, 81.46),
])
pad11 = body2.newObject("PartDesign::Pad", "Pad010")
pad11.Profile = sketch14
pad11.Length = 1.6

# Sketch on XY plane
sketch15 = body2.newObject("Sketcher::SketchObject", "Sketch014")
sketch15.AttachmentSupport = (doc.getObject("XY_Plane001"), [""])
sketch15.MapMode = "FlatFace"
sketch15.AttachmentOffset = App.Placement(Vector(0, 0, -2.8), App.Rotation())
sketch15.addGeometry([
    Part.LineSegment(Vector(69.16, -3.05, 0), Vector(57.51, -3.05, 0)),  # 0
    Part.ArcOfCircle(Part.Circle(Vector(57.51, -3.55, 0), Vector(0, 0, 1), 0.5), math.radians(90), math.radians(180)),  # 1
    Part.LineSegment(Vector(57.01, -3.55, 0), Vector(57.01, -15.85, 0)),  # 2
    Part.ArcOfCircle(Part.Circle(Vector(57.51, -15.85, 0), Vector(0, 0, 1), 0.5), math.radians(180), math.radians(270)),  # 3
    Part.LineSegment(Vector(57.51, -16.35, 0), Vector(69.16, -16.35, 0)),  # 4
    Part.ArcOfCircle(Part.Circle(Vector(69.16, -15.85, 0), Vector(0, 0, 1), 0.5), math.radians(-90), math.radians(0)),  # 5
    Part.LineSegment(Vector(69.66, -15.85, 0), Vector(69.66, -3.55, 0)),  # 6
    Part.ArcOfCircle(Part.Circle(Vector(69.16, -3.55, 0), Vector(0, 0, 1), 0.5), math.radians(0), math.radians(90)),  # 7
], False)
sketch15.addConstraint([
    Sketcher.Constraint("Tangent", 0, 2, 1, 1),
    Sketcher.Constraint("Tangent", 1, 2, 2, 1),
    Sketcher.Constraint("Tangent", 2, 2, 3, 1),
    Sketcher.Constraint("Tangent", 3, 2, 4, 1),
    Sketcher.Constraint("Tangent", 4, 2, 5, 1),
    Sketcher.Constraint("Tangent", 5, 2, 6, 1),
    Sketcher.Constraint("Tangent", 6, 2, 7, 1),
    Sketcher.Constraint("Tangent", 7, 2, 0, 1),
    Sketcher.Constraint("Horizontal", 0),
    Sketcher.Constraint("Vertical", 2),
    Sketcher.Constraint("Horizontal", 4),
    Sketcher.Constraint("Vertical", 6),
    Sketcher.Constraint("Equal", 1, 3),
    Sketcher.Constraint("Equal", 3, 5),
    Sketcher.Constraint("Equal", 5, 7),
    Sketcher.Constraint("Radius", 1, 0.5),
    Sketcher.Constraint("DistanceY", 2, 2, 2, 1, 12.3),
    Sketcher.Constraint("DistanceX", 0, 2, 0, 1, 11.65),
    Sketcher.Constraint("DistanceX", -1, 1, 1, 3, 57.51),
    Sketcher.Constraint("DistanceY", 1, 3, -1, 1, 3.55),
])
pad12 = body2.newObject("PartDesign::Pad", "Pad011")
pad12.Profile = sketch15
pad12.Length = 5.8

# Sketch on XY plane
sketch16 = body2.newObject("Sketcher::SketchObject", "Sketch015")
sketch16.AttachmentSupport = (doc.getObject("XY_Plane001"), [""])
sketch16.MapMode = "FlatFace"
sketch16.AttachmentOffset = App.Placement(Vector(0, 0, 3), App.Rotation())
sketch16.addGeometry(Part.Circle(Vector(63.3, -9.7, 0), Vector(0, 0, 1), 3.4), False)
sketch16.addConstraint([
    Sketcher.Constraint("Diameter", 0, 6.85),
    Sketcher.Constraint("DistanceY", 0, 3, -1, 1, 9.7),
    Sketcher.Constraint("DistanceX", -1, 1, 0, 3, 63.335),
])
pad13 = body2.newObject("PartDesign::Pad", "Pad012")
pad13.Profile = sketch16
pad13.Length = 4.7

# Sketch on XY plane
sketch17 = body2.newObject("Sketcher::SketchObject", "Sketch016")
sketch17.AttachmentSupport = (doc.getObject("XY_Plane001"), [""])
sketch17.MapMode = "FlatFace"
sketch17.AttachmentOffset = App.Placement(Vector(0, 0, 7.7), App.Rotation())
sketch17.addGeometry([
    Part.LineSegment(Vector(66, -8.2, 0), Vector(60.7, -8.2, 0)),
    Part.ArcOfCircle(Part.Circle(Vector(63.3, -9.7, 0), Vector(0, 0, 1), 3), math.radians(151), math.radians(389)),
], False)
sketch17.addConstraint([
    Sketcher.Constraint("Coincident", 0, 1, 1, 2),
    Sketcher.Constraint("Coincident", 1, 1, 0, 2),
    Sketcher.Constraint("Horizontal", 0),
    Sketcher.Constraint("Radius", 1, 3.0),
    Sketcher.Constraint("DistanceY", 1, 3, -1, 1, 9.7),
    Sketcher.Constraint("DistanceY", 0, 1, -1, 1, 8.25),
    Sketcher.Constraint("DistanceX", -1, 1, 1, 3, 63.335),
])
pad14 = body2.newObject("PartDesign::Pad", "Pad013")
pad14.Profile = sketch17
pad14.Length = 9

# Sketch on XY plane
sketch18 = body2.newObject("Sketcher::SketchObject", "Sketch017")
sketch18.AttachmentSupport = (doc.getObject("XY_Plane001"), [""])
sketch18.MapMode = "FlatFace"
sketch18.AttachmentOffset = App.Placement(Vector(0, 0, 0.7), App.Rotation())
sketch18.addGeometry([
    Part.Circle(Vector(79.3, -10.5, 0), Vector(0, 0, 1), 0.6),  # 0
    Part.Circle(Vector(83.6, -10.5, 0), Vector(0, 0, 1), 0.6),  # 1
    Part.Circle(Vector(83.6, -14.8, 0), Vector(0, 0, 1), 0.6),  # 2
    Part.Circle(Vector(79.3, -14.8, 0), Vector(0, 0, 1), 0.6),  # 3
    Part.Circle(Vector(47.2, -10.7, 0), Vector(0, 0, 1), 0.6),  # 4
    Part.Circle(Vector(51.5, -10.7, 0), Vector(0, 0, 1), 0.6),  # 5
    Part.Circle(Vector(51.5, -15, 0), Vector(0, 0, 1), 0.6),  # 6
    Part.Circle(Vector(47.2, -15, 0), Vector(0, 0, 1), 0.6),  # 7
], False)
sketch18.addConstraint([
    Sketcher.Constraint("Equal", 0, 1),
    Sketcher.Constraint("Equal", 1, 2),
    Sketcher.Constraint("Equal", 2, 3),
    Sketcher.Constraint("Equal", 3, 4),
    Sketcher.Constraint("Equal", 4, 5),
    Sketcher.Constraint("Equal", 5, 6),
    Sketcher.Constraint("Equal", 6, 7),
    Sketcher.Constraint("Horizontal", 0, 3, 1, 3),
    Sketcher.Constraint("Horizontal", 2, 3, 3, 3),
    Sketcher.Constraint("Horizontal", 4, 3, 5, 3),
    Sketcher.Constraint("Horizontal", 6, 3, 7, 3),
    Sketcher.Constraint("Vertical", 1, 3, 2, 3),
    Sketcher.Constraint("Vertical", 0, 3, 3, 3),
    Sketcher.Constraint("Vertical", 5, 3, 6, 3),
    Sketcher.Constraint("Vertical", 4, 3, 7, 3),
    Sketcher.Constraint("Diameter", 0, 1.2),
    Sketcher.Constraint("DistanceY", 6, 3, -1, 1, 15.0),
    Sketcher.Constraint("DistanceY", 0, 3, -1, 1, 10.5),
    Sketcher.Constraint("DistanceY", 2, 3, -1, 1, 14.8),
    Sketcher.Constraint("DistanceY", 4, 3, -1, 1, 10.7),
    Sketcher.Constraint("DistanceX", 0, 3, 1, 3, 4.3),
    Sketcher.Constraint("DistanceX", 4, 3, 5, 3, 4.3),
    Sketcher.Constraint("DistanceX", -1, 1, 0, 3, 79.31),
    Sketcher.Constraint("DistanceX", -1, 1, 4, 3, 47.16),
])
pad15 = body2.newObject("PartDesign::Pad", "Pad014")
pad15.Profile = sketch18
pad15.Length = 0.4

# Sketch on XY plane
sketch19 = body2.newObject("Sketcher::SketchObject", "Sketch018")
sketch19.AttachmentSupport = (doc.getObject("XY_Plane001"), [""])
sketch19.MapMode = "FlatFace"
sketch19.AttachmentOffset = App.Placement(Vector(0, 0, -2.8), App.Rotation())
sketch19.addGeometry(Part.Circle(Vector(28, -11, 0), Vector(0, 0, 1), 6), False)
sketch19.addConstraint([
    Sketcher.Constraint("Diameter", 0, 11.8),
    Sketcher.Constraint("DistanceX", -1, 1, 0, 3, 28.0),
    Sketcher.Constraint("DistanceY", 0, 3, -1, 1, 10.85),
])
pad16 = body2.newObject("PartDesign::Pad", "Pad015")
pad16.Profile = sketch19
pad16.Length = 9.5

# Sketch on XY plane
sketch20 = body2.newObject("Sketcher::SketchObject", "Sketch019")
sketch20.AttachmentSupport = (doc.getObject("XY_Plane001"), [""])
sketch20.MapMode = "FlatFace"
sketch20.AttachmentOffset = App.Placement(Vector(0, 0, 6.7), App.Rotation())
sketch20.addGeometry(Part.Circle(Vector(28, -10.8, 0), Vector(0, 0, 1), 1.2), False)
sketch20.addConstraint([
    Sketcher.Constraint("Diameter", 0, 2.4),
    Sketcher.Constraint("DistanceX", -1, 1, 0, 3, 28.0),
    Sketcher.Constraint("DistanceY", 0, 3, -1, 1, 10.85),
])
pocket4 = body2.newObject("PartDesign::Pocket", "Pocket003")
pocket4.Profile = sketch20
pocket4.Length = 2

# Sketch on XY plane
sketch21 = body2.newObject("Sketcher::SketchObject", "Sketch020")
sketch21.AttachmentSupport = (doc.getObject("XY_Plane001"), [""])
sketch21.MapMode = "FlatFace"
sketch21.AttachmentOffset = App.Placement(Vector(0, 0, 7.7), App.Rotation())
sketch21.addGeometry(Part.Circle(Vector(63.3, -9.7, 0), Vector(0, 0, 1), 3), False)
sketch21.addConstraint([
    Sketcher.Constraint("Diameter", 0, 6.0),
    Sketcher.Constraint("DistanceY", 0, 3, -1, 1, 9.7),
    Sketcher.Constraint("DistanceX", -1, 1, 0, 3, 63.335),
])
pad17 = body2.newObject("PartDesign::Pad", "Pad016")
pad17.Profile = sketch21
pad17.Length = 2

doc.recompute()
